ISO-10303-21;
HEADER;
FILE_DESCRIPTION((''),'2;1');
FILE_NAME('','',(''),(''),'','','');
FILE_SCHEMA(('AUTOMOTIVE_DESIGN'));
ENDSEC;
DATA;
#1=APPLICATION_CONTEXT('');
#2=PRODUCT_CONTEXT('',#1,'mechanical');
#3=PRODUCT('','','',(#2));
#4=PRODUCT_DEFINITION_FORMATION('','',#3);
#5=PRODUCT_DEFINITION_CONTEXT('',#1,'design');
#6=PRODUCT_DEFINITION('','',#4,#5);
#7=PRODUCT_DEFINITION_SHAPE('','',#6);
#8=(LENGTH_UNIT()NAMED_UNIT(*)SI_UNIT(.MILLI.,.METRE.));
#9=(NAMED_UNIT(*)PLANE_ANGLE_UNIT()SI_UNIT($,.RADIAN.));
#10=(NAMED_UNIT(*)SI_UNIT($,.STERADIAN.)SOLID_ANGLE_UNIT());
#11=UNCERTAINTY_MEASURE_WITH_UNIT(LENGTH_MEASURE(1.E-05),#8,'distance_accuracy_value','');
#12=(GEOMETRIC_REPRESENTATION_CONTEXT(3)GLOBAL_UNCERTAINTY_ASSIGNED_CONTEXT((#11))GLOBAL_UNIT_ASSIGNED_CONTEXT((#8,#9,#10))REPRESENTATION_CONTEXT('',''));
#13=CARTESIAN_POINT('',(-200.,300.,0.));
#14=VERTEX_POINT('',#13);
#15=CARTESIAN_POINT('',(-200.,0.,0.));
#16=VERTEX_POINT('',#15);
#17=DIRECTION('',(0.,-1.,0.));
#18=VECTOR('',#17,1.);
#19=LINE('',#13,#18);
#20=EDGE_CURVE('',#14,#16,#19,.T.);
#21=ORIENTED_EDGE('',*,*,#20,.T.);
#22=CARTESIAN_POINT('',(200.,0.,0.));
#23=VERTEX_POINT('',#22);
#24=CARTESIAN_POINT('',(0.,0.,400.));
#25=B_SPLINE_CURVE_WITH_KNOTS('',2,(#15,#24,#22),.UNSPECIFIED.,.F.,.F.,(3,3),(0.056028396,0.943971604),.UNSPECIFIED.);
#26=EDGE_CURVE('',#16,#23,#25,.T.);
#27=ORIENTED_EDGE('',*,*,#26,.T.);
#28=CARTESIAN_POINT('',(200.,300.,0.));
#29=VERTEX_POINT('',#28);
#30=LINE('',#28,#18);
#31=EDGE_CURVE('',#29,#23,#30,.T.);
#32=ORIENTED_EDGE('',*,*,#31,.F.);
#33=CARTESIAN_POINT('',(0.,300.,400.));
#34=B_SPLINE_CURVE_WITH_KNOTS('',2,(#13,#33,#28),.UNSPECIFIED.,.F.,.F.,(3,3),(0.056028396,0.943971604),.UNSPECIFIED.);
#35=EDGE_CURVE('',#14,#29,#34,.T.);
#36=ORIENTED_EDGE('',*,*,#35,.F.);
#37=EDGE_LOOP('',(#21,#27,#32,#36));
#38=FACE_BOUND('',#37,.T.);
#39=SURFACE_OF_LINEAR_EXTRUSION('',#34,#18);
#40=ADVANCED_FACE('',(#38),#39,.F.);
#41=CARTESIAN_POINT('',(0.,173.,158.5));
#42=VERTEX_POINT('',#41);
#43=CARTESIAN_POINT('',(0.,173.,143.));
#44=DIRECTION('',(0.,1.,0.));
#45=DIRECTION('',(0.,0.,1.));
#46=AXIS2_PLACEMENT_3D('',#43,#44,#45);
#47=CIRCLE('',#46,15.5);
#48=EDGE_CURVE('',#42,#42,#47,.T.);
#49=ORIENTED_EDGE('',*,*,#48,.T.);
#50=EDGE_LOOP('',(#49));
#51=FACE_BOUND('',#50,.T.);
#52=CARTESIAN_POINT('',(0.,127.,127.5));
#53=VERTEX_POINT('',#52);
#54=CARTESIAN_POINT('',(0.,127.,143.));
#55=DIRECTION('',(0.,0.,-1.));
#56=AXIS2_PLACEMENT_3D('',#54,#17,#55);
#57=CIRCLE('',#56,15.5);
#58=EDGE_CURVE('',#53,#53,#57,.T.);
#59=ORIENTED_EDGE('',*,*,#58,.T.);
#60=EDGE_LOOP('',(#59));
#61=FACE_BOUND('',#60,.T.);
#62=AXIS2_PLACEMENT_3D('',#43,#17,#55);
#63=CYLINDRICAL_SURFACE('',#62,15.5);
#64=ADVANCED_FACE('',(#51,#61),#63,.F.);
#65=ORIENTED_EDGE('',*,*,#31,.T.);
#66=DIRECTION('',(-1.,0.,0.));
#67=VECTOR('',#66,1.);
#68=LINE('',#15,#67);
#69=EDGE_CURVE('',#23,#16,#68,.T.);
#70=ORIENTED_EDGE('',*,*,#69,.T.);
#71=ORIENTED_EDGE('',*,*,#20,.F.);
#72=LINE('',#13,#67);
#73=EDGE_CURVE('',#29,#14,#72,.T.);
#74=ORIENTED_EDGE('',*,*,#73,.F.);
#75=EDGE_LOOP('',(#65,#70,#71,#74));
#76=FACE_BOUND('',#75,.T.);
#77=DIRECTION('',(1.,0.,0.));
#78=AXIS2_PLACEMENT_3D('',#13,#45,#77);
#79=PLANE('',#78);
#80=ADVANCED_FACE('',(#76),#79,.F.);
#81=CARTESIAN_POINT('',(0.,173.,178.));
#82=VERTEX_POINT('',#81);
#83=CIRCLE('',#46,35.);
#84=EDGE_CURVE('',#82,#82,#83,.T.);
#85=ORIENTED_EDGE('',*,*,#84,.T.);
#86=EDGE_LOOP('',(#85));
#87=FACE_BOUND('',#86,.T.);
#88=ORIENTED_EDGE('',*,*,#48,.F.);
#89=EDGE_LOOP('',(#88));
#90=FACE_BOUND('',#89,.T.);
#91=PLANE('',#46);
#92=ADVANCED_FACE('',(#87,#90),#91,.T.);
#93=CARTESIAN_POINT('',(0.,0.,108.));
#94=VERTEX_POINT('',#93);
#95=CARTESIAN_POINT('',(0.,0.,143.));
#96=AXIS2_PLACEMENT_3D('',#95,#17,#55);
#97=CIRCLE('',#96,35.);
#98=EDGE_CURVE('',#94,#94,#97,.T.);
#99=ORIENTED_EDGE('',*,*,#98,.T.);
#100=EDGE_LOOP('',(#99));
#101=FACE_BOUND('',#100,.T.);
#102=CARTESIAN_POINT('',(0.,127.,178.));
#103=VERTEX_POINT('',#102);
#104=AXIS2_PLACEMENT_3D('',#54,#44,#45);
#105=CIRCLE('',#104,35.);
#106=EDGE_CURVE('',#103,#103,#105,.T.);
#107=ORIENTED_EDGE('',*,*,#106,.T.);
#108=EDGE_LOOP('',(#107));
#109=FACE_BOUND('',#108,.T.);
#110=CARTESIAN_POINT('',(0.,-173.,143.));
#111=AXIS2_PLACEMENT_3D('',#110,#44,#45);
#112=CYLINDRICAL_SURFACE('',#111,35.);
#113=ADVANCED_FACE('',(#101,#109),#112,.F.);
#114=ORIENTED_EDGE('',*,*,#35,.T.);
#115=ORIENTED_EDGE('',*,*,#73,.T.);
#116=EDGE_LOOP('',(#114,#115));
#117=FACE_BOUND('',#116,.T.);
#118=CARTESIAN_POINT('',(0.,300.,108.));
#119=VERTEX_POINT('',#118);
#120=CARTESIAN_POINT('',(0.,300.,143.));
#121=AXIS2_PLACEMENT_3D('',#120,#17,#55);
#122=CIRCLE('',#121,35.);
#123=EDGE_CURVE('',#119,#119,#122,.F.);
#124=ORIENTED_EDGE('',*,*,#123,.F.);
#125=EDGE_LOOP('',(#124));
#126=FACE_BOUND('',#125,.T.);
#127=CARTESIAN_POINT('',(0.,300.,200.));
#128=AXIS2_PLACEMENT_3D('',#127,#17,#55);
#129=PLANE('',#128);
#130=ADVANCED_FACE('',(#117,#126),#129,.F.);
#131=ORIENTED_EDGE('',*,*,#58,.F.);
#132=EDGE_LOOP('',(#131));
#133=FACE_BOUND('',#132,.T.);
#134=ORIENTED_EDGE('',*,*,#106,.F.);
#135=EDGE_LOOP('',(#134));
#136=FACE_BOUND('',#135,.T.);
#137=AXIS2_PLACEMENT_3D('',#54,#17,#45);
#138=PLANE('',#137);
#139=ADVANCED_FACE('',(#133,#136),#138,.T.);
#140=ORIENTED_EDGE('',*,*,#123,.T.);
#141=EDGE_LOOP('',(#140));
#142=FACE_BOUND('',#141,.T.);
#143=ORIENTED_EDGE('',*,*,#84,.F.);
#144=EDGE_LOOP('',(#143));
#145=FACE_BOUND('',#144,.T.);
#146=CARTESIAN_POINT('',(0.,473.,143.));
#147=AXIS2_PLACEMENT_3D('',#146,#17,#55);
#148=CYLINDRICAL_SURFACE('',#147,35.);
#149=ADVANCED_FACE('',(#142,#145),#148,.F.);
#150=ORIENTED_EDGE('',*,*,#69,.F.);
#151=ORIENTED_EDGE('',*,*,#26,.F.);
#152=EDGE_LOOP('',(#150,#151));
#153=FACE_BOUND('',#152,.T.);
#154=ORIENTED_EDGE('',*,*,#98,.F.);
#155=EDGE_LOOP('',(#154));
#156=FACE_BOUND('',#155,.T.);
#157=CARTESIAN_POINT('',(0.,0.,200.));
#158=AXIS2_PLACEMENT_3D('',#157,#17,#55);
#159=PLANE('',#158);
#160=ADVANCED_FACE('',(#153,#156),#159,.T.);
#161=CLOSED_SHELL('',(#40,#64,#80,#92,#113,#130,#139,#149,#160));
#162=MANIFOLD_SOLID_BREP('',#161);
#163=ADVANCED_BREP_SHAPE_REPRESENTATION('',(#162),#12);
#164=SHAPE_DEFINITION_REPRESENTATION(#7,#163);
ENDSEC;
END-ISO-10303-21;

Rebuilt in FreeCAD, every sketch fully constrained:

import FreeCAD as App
import Part
import Sketcher

V = App.Vector
Q = App.Units.Quantity

doc = App.newDocument("Part")
body = doc.addObject("PartDesign::Body", "Body")

sketch1 = body.newObject("Sketcher::SketchObject", "Sketch")
sketch1.AttachmentSupport = (doc.getObject("XZ_Plane"), [""])
sketch1.MapMode = "FlatFace"
sketch1.addGeometry(Part.LineSegment(V(200, 0, 0), V(-200, 0, 0)), False)
sketch1.addGeometry(Part.BSplineCurve([V(-200, 0, 0), V(0, 400, 0), V(200, 0, 0)], [3, 3], [0.056028396, 0.943971604], False, 2, [1, 1, 1], False), False)
sketch1.addConstraint(Sketcher.Constraint("Block", 1))
sketch1.addConstraint(Sketcher.Constraint("Coincident", 0, 1, 1, 2))
sketch1.addConstraint(Sketcher.Constraint("Coincident", 1, 1, 0, 2))
pad1 = body.newObject("PartDesign::Pad", "Pad")
pad1.Profile = sketch1
pad1.Length = 300
pad1.Reversed = True

sketch2 = body.newObject("Sketcher::SketchObject", "Sketch001")
sketch2.AttachmentSupport = (doc.getObject("XZ_Plane"), [""])
sketch2.MapMode = "FlatFace"
sketch2.AttachmentOffset = App.Placement(V(0, 0, -150), App.Rotation())
sketch2.addGeometry(Part.Circle(V(0, 143, 0), V(0, 0, 1), 16), False)
sketch2.addConstraint(Sketcher.Constraint("PointOnObject", 0, 3, -2))
sketch2.addConstraint(Sketcher.Constraint("Diameter", 0, Q("31 mm")))
sketch2.addConstraint(Sketcher.Constraint("DistanceY", -1, 1, 0, 3, Q("143 mm")))
pocket1 = body.newObject("PartDesign::Pocket", "Pocket")
pocket1.Profile = sketch2
pocket1.Type = "TwoLengths"
pocket1.Length = 23
pocket1.Length2 = 23

sketch3 = body.newObject("Sketcher::SketchObject", "Sketch002")
sketch3.AttachmentSupport = (doc.getObject("XZ_Plane"), [""])
sketch3.MapMode = "FlatFace"
sketch3.AttachmentOffset = App.Placement(V(0, 0, -173), App.Rotation())
sketch3.addGeometry(Part.Circle(V(0, 143, 0), V(0, 0, 1), 35), False)
sketch3.addConstraint(Sketcher.Constraint("PointOnObject", 0, 3, -2))
sketch3.addConstraint(Sketcher.Constraint("Diameter", 0, Q("70 mm")))
sketch3.addConstraint(Sketcher.Constraint("DistanceY", -1, 1, 0, 3, Q("143 mm")))
pocket2 = body.newObject("PartDesign::Pocket", "Pocket001")
pocket2.Profile = sketch3
pocket2.Length = 300
doc.recompute()

datumplane = body.newObject("PartDesign::Plane", "DatumPlane")
datumplane.AttachmentSupport = (doc.getObject("XZ_Plane"), [""])
datumplane.MapMode = "FlatFace"
datumplane.AttachmentOffset = App.Placement(V(0, 0, -150), App.Rotation())
mirrored = body.newObject("PartDesign::Mirrored", "Mirrored")
mirrored.Originals = [pocket2]
mirrored.MirrorPlane = (datumplane, [""])
body.Tip = mirrored

doc.recompute()
